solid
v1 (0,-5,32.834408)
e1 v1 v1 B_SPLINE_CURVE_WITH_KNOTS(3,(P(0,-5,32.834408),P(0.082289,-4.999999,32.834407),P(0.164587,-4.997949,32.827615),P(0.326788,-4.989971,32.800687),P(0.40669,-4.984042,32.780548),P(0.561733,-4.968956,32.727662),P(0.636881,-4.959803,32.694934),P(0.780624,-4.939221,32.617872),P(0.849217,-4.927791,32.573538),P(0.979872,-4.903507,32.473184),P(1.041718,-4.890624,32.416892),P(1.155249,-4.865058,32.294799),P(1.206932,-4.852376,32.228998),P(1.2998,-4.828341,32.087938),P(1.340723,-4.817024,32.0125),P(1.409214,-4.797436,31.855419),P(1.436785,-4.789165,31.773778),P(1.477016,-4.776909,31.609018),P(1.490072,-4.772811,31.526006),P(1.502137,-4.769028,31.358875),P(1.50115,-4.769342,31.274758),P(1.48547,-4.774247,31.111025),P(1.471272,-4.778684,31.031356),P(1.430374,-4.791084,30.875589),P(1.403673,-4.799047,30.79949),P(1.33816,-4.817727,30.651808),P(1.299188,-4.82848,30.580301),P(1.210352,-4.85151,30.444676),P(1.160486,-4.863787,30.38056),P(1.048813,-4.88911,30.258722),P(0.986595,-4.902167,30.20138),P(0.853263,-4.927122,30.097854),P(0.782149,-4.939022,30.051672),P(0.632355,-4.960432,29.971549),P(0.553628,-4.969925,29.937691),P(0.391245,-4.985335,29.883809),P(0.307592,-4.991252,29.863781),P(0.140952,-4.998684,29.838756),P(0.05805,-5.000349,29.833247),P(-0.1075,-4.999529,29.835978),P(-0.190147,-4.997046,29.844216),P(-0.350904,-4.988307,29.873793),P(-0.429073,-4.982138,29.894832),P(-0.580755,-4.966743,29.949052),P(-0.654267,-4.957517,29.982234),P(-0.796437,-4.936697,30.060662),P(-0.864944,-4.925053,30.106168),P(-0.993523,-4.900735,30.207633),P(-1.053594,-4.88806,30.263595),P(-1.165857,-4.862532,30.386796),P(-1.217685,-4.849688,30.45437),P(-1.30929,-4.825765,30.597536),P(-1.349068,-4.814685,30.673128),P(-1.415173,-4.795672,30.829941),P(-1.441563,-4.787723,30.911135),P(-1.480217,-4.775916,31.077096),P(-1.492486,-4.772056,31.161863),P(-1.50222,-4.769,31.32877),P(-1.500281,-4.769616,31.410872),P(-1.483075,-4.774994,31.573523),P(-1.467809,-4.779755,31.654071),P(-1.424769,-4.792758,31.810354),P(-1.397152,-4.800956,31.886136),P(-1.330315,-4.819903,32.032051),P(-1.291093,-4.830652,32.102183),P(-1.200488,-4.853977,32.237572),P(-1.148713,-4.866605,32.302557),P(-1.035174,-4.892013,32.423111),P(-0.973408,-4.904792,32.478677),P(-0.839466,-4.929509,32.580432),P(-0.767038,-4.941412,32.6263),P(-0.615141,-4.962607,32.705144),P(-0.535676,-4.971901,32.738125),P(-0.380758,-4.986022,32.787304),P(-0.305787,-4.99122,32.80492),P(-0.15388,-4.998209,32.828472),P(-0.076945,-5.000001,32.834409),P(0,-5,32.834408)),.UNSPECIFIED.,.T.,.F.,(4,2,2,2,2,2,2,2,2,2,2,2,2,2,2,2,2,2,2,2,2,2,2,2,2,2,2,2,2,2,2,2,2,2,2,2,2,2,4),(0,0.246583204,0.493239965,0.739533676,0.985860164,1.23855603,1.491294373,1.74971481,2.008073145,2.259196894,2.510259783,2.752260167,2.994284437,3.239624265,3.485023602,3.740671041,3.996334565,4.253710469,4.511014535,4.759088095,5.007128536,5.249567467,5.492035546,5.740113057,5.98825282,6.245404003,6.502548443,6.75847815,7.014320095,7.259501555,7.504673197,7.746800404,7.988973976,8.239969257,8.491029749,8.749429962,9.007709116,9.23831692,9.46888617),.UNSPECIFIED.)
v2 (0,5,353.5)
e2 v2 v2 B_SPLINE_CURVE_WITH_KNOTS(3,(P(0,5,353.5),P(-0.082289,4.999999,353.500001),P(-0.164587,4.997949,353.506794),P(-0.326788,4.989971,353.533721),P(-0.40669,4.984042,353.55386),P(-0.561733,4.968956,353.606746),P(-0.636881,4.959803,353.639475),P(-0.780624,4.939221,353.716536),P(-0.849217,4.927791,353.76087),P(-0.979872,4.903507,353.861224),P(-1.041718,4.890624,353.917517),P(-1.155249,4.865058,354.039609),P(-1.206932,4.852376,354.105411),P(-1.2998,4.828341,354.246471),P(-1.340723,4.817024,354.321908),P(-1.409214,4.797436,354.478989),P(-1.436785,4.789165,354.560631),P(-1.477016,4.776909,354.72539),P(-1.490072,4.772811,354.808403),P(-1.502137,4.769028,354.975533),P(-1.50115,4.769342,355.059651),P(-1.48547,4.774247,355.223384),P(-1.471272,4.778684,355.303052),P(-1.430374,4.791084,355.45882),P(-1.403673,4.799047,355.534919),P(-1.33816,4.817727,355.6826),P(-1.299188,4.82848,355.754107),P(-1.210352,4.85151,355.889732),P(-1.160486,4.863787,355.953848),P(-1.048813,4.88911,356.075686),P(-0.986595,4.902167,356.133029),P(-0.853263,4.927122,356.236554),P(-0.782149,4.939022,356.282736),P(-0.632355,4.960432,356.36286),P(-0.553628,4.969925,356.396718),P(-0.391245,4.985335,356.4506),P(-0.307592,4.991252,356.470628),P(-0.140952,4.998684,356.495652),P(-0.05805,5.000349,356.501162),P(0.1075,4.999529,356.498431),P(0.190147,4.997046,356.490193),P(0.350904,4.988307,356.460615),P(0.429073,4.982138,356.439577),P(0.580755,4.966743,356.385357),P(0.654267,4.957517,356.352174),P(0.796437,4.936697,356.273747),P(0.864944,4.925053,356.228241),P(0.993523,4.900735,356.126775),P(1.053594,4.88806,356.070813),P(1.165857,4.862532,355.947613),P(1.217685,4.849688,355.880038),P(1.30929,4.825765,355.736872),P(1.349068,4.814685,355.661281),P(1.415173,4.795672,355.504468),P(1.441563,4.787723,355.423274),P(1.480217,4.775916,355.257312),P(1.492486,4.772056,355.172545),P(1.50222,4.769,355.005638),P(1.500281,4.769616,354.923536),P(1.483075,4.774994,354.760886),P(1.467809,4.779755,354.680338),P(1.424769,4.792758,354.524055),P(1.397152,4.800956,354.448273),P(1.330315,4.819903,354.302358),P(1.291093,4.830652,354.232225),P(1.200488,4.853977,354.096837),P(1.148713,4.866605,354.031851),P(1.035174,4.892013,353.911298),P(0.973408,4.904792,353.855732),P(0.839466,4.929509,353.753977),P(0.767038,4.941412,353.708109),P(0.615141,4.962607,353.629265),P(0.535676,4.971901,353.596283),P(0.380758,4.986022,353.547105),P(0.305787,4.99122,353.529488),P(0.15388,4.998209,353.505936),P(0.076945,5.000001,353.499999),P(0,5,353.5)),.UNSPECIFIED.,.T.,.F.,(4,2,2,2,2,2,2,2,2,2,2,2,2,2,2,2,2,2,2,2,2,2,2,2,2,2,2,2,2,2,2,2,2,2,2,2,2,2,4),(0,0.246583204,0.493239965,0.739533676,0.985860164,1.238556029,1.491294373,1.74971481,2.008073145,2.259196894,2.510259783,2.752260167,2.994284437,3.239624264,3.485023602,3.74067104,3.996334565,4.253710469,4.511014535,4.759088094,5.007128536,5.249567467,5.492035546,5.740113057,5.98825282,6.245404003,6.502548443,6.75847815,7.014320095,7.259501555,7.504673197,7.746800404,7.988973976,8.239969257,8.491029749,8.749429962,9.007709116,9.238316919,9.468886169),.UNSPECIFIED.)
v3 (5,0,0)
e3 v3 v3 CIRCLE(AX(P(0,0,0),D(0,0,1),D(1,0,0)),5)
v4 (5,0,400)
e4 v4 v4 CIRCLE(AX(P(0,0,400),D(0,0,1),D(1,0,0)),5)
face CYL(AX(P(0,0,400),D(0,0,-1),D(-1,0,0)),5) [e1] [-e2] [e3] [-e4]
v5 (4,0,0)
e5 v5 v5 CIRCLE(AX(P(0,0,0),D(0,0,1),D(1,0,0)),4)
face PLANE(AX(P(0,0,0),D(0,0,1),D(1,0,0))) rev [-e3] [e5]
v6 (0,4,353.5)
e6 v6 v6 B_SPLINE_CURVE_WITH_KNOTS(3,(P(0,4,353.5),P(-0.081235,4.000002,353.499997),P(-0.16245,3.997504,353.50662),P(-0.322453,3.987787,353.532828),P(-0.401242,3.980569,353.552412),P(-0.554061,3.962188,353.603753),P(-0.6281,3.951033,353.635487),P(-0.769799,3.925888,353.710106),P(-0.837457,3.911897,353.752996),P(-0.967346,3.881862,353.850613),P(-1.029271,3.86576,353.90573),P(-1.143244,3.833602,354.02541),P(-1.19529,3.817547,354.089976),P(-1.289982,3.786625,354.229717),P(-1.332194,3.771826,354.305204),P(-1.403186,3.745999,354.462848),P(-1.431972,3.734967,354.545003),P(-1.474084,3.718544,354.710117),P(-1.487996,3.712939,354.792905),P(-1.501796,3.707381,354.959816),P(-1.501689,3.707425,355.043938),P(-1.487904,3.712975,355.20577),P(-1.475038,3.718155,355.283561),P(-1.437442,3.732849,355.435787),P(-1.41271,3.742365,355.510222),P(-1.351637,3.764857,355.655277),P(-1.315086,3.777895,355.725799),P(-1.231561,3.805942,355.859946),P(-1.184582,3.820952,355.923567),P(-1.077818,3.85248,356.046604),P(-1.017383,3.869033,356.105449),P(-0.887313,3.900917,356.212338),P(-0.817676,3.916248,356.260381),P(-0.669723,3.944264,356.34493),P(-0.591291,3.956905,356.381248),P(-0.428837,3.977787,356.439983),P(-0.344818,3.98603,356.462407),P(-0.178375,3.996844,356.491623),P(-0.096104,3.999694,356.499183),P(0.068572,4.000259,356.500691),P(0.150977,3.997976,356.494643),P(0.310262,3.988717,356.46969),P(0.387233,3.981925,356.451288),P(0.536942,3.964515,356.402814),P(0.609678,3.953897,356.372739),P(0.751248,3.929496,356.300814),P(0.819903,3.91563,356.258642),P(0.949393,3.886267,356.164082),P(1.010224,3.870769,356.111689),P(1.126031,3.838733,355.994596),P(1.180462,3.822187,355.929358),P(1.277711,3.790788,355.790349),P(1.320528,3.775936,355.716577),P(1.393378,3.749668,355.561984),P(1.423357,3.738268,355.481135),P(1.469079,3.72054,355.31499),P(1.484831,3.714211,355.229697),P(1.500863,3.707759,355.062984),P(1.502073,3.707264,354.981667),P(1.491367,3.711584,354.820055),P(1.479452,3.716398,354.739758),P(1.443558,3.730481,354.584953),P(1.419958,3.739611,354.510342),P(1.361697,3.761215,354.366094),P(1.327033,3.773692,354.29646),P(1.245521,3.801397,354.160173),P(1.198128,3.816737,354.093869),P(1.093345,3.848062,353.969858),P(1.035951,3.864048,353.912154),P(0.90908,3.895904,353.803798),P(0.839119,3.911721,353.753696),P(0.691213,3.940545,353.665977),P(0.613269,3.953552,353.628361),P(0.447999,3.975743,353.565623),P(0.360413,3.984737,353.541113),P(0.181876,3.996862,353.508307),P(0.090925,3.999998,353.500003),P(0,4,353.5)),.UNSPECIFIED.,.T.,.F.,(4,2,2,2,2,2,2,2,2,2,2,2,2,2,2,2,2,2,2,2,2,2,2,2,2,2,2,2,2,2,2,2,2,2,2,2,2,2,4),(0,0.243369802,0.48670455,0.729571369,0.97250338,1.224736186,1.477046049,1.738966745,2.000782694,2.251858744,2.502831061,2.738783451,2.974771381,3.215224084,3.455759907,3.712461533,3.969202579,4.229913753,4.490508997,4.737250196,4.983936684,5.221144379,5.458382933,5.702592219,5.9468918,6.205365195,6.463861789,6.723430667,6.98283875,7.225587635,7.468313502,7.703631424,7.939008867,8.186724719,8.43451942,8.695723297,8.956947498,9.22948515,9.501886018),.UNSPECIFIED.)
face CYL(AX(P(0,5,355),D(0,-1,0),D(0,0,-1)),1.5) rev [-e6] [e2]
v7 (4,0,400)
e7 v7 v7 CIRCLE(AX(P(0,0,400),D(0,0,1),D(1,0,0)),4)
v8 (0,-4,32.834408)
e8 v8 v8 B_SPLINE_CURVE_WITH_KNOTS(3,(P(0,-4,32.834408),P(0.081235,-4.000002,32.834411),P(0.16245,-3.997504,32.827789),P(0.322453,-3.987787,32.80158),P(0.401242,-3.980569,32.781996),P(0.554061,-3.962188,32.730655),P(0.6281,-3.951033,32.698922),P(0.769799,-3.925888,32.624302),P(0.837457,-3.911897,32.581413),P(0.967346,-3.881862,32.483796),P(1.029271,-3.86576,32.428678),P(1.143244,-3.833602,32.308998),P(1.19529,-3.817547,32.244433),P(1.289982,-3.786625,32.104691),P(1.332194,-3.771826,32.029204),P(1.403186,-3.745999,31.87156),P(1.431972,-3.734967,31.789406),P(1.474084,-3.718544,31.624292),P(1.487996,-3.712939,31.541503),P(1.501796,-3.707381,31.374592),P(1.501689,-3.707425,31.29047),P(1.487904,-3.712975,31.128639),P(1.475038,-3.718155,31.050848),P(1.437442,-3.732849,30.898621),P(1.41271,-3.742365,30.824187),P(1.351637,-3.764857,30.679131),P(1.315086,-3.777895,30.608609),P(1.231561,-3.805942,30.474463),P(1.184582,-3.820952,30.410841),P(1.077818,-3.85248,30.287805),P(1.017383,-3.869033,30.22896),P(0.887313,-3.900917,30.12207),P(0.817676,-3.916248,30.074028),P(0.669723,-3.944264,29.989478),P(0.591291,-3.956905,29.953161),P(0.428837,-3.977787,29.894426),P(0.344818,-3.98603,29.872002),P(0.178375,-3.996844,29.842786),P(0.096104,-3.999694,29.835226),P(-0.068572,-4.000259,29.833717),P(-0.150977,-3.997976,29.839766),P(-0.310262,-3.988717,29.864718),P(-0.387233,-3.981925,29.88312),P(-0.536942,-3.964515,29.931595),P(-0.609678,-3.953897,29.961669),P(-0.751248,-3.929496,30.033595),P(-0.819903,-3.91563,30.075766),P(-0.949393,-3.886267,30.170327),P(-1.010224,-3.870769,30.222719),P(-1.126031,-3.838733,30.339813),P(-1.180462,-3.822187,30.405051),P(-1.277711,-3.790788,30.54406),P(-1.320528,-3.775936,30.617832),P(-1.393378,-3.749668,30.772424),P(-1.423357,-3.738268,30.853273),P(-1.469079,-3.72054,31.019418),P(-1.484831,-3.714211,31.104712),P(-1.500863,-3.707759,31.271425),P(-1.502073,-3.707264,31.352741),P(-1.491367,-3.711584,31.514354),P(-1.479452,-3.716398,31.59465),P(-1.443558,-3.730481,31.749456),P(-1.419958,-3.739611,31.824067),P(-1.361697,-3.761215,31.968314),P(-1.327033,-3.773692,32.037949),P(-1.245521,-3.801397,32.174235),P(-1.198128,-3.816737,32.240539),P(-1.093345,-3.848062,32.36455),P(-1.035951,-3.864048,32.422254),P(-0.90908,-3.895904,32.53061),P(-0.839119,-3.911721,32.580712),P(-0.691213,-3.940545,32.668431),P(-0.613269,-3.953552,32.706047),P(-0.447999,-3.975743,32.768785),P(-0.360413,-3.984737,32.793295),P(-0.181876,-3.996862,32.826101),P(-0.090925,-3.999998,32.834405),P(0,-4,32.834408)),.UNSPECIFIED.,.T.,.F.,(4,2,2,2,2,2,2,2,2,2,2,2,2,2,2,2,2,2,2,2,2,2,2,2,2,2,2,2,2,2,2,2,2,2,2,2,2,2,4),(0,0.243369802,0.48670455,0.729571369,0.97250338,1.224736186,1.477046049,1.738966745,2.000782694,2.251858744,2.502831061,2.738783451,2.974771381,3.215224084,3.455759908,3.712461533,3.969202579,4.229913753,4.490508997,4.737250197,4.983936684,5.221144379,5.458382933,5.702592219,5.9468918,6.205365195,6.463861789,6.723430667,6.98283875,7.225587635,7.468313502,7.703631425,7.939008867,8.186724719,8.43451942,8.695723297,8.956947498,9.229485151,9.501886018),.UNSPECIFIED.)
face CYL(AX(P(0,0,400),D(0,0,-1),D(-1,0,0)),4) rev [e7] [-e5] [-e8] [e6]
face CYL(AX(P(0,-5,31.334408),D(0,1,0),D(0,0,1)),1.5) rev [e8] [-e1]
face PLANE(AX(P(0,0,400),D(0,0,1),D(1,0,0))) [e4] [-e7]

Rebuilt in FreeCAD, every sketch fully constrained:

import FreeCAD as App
import Part
import Sketcher

V = App.Vector
Q = App.Units.Quantity

doc = App.newDocument("Part")
body = doc.addObject("PartDesign::Body", "Body")

sketch1 = body.newObject("Sketcher::SketchObject", "Sketch")
sketch1.AttachmentSupport = (doc.getObject("XY_Plane"), [""])
sketch1.MapMode = "FlatFace"
sketch1.addGeometry([
    Part.Circle(V(0, 0, 0), V(0, 0, 1), 5),
    Part.Circle(V(0, 0, 0), V(0, 0, 1), 4),
], False)
sketch1.addConstraint([
    Sketcher.Constraint("Coincident", 0, 3, -1, 1),
    Sketcher.Constraint("Coincident", 1, 3, -1, 1),
    Sketcher.Constraint("Diameter", 0, Q("10 mm")),
    Sketcher.Constraint("Diameter", 1, Q("8 mm")),
])
pad1 = body.newObject("PartDesign::Pad", "Pad")
pad1.Profile = sketch1
pad1.Length = 400

sketch2 = body.newObject("Sketcher::SketchObject", "Sketch001")
sketch2.AttachmentSupport = (doc.getObject("XZ_Plane"), [""])
sketch2.MapMode = "FlatFace"
sketch2.addGeometry(Part.Circle(V(0, 31.3, 0), V(0, 0, 1), 1.5), False)
sketch2.addConstraint([
    Sketcher.Constraint("PointOnObject", 0, 3, -2),
    Sketcher.Constraint("Diameter", 0, Q("3 mm")),
    Sketcher.Constraint("DistanceY", -1, 1, 0, 3, Q("31.334408 mm")),
])
pocket1 = body.newObject("PartDesign::Pocket", "Pocket")
pocket1.Profile = sketch2
pocket1.Type = "ThroughAll"
pocket1.Reversed = True

sketch3 = body.newObject("Sketcher::SketchObject", "Sketch002")
sketch3.AttachmentSupport = (doc.getObject("XZ_Plane"), [""])
sketch3.MapMode = "FlatFace"
sketch3.addGeometry(Part.Circle(V(0, 355, 0), V(0, 0, 1), 1.5), False)
sketch3.addConstraint([
    Sketcher.Constraint("PointOnObject", 0, 3, -2),
    Sketcher.Constraint("Diameter", 0, Q("3 mm")),
    Sketcher.Constraint("DistanceY", -1, 1, 0, 3, Q("355 mm")),
])
pocket2 = body.newObject("PartDesign::Pocket", "Pocket001")
pocket2.Profile = sketch3
pocket2.Type = "ThroughAll"

doc.recompute()
